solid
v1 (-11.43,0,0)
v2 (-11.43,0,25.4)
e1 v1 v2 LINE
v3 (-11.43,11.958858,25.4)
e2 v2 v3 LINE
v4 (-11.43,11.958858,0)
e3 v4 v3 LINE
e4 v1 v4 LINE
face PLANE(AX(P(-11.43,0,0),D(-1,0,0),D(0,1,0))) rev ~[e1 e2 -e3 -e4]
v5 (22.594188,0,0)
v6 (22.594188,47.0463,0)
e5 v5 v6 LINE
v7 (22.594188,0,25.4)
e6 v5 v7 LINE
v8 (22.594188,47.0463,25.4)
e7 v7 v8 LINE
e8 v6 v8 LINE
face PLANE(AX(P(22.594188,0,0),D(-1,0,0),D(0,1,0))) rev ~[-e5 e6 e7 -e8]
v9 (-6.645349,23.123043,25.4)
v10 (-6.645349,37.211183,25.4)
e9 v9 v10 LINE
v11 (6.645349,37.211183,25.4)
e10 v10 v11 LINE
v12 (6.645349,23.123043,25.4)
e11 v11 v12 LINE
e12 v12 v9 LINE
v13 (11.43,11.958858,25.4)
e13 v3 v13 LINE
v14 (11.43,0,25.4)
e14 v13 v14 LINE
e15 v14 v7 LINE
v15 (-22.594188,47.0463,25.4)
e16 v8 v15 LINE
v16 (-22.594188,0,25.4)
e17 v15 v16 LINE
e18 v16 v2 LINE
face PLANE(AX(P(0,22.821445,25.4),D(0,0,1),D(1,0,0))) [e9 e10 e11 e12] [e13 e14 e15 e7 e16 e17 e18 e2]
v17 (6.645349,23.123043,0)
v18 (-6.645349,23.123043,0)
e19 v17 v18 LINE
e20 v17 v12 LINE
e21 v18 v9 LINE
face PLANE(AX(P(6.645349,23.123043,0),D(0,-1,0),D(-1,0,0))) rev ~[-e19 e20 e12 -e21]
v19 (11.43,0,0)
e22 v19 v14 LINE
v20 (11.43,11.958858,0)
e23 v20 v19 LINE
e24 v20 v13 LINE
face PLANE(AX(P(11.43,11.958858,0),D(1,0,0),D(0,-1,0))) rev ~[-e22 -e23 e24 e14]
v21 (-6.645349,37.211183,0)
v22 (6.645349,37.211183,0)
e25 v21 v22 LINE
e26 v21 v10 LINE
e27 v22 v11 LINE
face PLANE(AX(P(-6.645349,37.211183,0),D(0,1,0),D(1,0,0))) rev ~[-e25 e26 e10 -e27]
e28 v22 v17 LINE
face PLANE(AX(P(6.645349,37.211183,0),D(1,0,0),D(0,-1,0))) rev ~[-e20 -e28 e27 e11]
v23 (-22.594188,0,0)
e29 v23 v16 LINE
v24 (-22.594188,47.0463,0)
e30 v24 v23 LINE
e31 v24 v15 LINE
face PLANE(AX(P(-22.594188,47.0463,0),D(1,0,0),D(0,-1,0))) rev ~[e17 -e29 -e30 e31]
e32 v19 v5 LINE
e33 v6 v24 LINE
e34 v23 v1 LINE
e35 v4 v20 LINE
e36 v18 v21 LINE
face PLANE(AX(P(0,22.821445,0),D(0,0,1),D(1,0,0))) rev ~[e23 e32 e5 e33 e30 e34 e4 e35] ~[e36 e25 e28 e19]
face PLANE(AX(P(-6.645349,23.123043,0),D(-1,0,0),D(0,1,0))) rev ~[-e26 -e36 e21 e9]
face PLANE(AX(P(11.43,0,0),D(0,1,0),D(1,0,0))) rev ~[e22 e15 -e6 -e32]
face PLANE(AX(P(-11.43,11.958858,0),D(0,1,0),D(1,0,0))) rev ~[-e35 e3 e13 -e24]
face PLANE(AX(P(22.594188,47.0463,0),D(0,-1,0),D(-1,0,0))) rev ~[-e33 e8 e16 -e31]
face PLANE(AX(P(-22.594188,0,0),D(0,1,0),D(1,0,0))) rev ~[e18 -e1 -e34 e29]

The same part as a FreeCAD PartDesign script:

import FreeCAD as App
import Part
import Sketcher
from FreeCAD import Vector
Q = App.Units.Quantity

doc = App.newDocument("Part")
body = doc.addObject("PartDesign::Body", "Body")

# Sketch on XY plane
sketch1 = doc.addObject("Sketcher::SketchObject", "Sketch")
body.addObject(sketch1)
sketch1.AttachmentSupport = (doc.XY_Plane, [""])
sketch1.MapMode = "FlatFace"
sketch1.addGeometry([
    Part.LineSegment(Vector(-23, 47, 0), Vector(-23, 0, 0)),  # 0
    Part.LineSegment(Vector(-23, 0, 0), Vector(-11, 0, 0)),  # 1
    Part.LineSegment(Vector(-11, 0, 0), Vector(-11, 12, 0)),  # 2
    Part.LineSegment(Vector(-11, 12, 0), Vector(11, 12, 0)),  # 3
    Part.LineSegment(Vector(11, 12, 0), Vector(11, 0, 0)),  # 4
    Part.LineSegment(Vector(11, 0, 0), Vector(23, 0, 0)),  # 5
    Part.LineSegment(Vector(23, 0, 0), Vector(23, 47, 0)),  # 6
    Part.LineSegment(Vector(23, 47, 0), Vector(-23, 47, 0)),  # 7
    Part.LineSegment(Vector(7, 37, 0), Vector(7, 23, 0)),  # 8
    Part.LineSegment(Vector(7, 23, 0), Vector(-7, 23, 0)),  # 9
    Part.LineSegment(Vector(-7, 23, 0), Vector(-7, 37, 0)),  # 10
    Part.LineSegment(Vector(-7, 37, 0), Vector(7, 37, 0)),  # 11
], False)
sketch1.addConstraint([
    Sketcher.Constraint("Coincident", 0, 2, 1, 1),
    Sketcher.Constraint("Coincident", 1, 2, 2, 1),
    Sketcher.Constraint("Coincident", 2, 2, 3, 1),
    Sketcher.Constraint("Coincident", 3, 2, 4, 1),
    Sketcher.Constraint("Coincident", 4, 2, 5, 1),
    Sketcher.Constraint("Coincident", 5, 2, 6, 1),
    Sketcher.Constraint("Coincident", 6, 2, 7, 1),
    Sketcher.Constraint("Coincident", 7, 2, 0, 1),
    Sketcher.Constraint("Coincident", 8, 2, 9, 1),
    Sketcher.Constraint("Coincident", 9, 2, 10, 1),
    Sketcher.Constraint("Coincident", 10, 2, 11, 1),
    Sketcher.Constraint("Coincident", 11, 2, 8, 1),
    Sketcher.Constraint("Vertical", 0),
    Sketcher.Constraint("Horizontal", 1),
    Sketcher.Constraint("Vertical", 2),
    Sketcher.Constraint("Horizontal", 3),
    Sketcher.Constraint("Vertical", 4),
    Sketcher.Constraint("Horizontal", 5),
    Sketcher.Constraint("Vertical", 6),
    Sketcher.Constraint("Horizontal", 7),
    Sketcher.Constraint("Vertical", 8),
    Sketcher.Constraint("Horizontal", 9),
    Sketcher.Constraint("Vertical", 10),
    Sketcher.Constraint("Horizontal", 11),
    Sketcher.Constraint("Symmetric", 1, 2, 4, 2, -1, 1),
    Sketcher.Constraint("Symmetric", 0, 2, 5, 2, -2),
    Sketcher.Constraint("DistanceX", 3, 1, 3, 2, Q("0.9 in")),
    Sketcher.Constraint("DistanceX", 9, 2, 9, 1, Q("13.290698 mm")),
    Sketcher.Constraint("DistanceY", 0, 2, 0, 1, Q("47.0463 mm")),
    Sketcher.Constraint("DistanceY", 8, 2, 8, 1, Q("14.08814 mm")),
    Sketcher.Constraint("DistanceX", 1, 1, 1, 2, Q("11.164188 mm")),
    Sketcher.Constraint("DistanceY", 2, 1, 2, 2, Q("11.958858 mm")),
    Sketcher.Constraint("DistanceX", -1, 1, 8, 2, Q("6.645349 mm")),
    Sketcher.Constraint("DistanceY", -1, 1, 8, 2, Q("23.123043 mm")),
])
pad1 = doc.addObject("PartDesign::Pad", "Pad")
body.addObject(pad1)
pad1.Profile = sketch1
pad1.Length = Q("1 in")

doc.recompute()
